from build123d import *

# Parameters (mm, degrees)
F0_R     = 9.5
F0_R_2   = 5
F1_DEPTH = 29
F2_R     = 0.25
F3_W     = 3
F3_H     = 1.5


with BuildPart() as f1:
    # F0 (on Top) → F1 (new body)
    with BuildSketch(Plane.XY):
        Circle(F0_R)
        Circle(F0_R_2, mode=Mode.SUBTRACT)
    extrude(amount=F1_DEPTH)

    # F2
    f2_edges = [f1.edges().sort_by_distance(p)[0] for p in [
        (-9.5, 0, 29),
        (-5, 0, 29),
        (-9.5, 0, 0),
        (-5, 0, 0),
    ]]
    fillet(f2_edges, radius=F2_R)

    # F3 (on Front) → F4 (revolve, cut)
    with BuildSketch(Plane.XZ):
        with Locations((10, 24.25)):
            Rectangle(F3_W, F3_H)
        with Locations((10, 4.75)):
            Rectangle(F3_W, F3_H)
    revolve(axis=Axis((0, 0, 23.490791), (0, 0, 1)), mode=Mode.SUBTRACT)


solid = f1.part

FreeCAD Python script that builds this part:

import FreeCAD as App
import Part
import Sketcher

V = App.Vector


def edges_at(feature, points):
    """Names of the edges that pass closest to the given points."""
    edges = feature.Shape.Edges
    near = lambda p: min(range(len(edges)), key=lambda i: edges[i].distToShape(Part.Vertex(*p))[0])
    return sorted({f"Edge{near(p) + 1}" for p in points})


def add_polygon(sketch, points):
    """Adds a closed chain of lines whose ends are joined by coincident constraints."""
    first, n = sketch.GeometryCount, len(points)
    for a, b in zip(points, points[1:] + points[:1]):
        sketch.addGeometry(Part.LineSegment(App.Vector(*a, 0), App.Vector(*b, 0)), False)
    for i in range(n):
        sketch.addConstraint(Sketcher.Constraint("Coincident", first + i, 2, first + (i + 1) % n, 1))

doc = App.newDocument("Part")
body = doc.addObject("PartDesign::Body", "Body")

# Sketch on XY plane
sketch1 = doc.addObject("Sketcher::SketchObject", "Sketch")
body.addObject(sketch1)
sketch1.AttachmentSupport = (doc.XY_Plane, [""])
sketch1.MapMode = "FlatFace"
sketch1.addGeometry(Part.Circle(V(0, 0, 0), V(0, 0, 1), 10), False)
sketch1.addGeometry(Part.Circle(V(0, 0, 0), V(0, 0, 1), 5), False)
sketch1.addConstraint(Sketcher.Constraint("Coincident", 0, 3, -1, 1))
sketch1.addConstraint(Sketcher.Constraint("Coincident", 1, 3, -1, 1))
sketch1.addConstraint(Sketcher.Constraint("Diameter", 0, 19.0))
sketch1.addConstraint(Sketcher.Constraint("Diameter", 1, 10.0))
pad1 = doc.addObject("PartDesign::Pad", "Pad")
body.addObject(pad1)
pad1.Profile = sketch1
pad1.Length = 29
doc.recompute()

fillet = doc.addObject("PartDesign::Fillet", "Fillet")
body.addObject(fillet)
fillet.Base = (pad1, edges_at(pad1, [
    (-9.5, 0, 29),
    (-5, 0, 29),
    (-9.5, 0, 0),
    (-5, 0, 0),
]))
fillet.Radius = 0.25

# Sketch on XZ plane
sketch2 = doc.addObject("Sketcher::SketchObject", "Sketch001")
body.addObject(sketch2)
sketch2.AttachmentSupport = (doc.XZ_Plane, [""])
sketch2.MapMode = "FlatFace"
add_polygon(sketch2, [(8.5, 25), (8.5, 23.5), (11.5, 23.5), (11.5, 25)])  # lines 0-3
add_polygon(sketch2, [(8.5, 5.5), (8.5, 4), (11.5, 4), (11.5, 5.5)])  # lines 4-7
sketch2.addConstraint(Sketcher.Constraint("Vertical", 0))
sketch2.addConstraint(Sketcher.Constraint("Horizontal", 1))
sketch2.addConstraint(Sketcher.Constraint("Vertical", 2))
sketch2.addConstraint(Sketcher.Constraint("Horizontal", 3))
sketch2.addConstraint(Sketcher.Constraint("Vertical", 4))
sketch2.addConstraint(Sketcher.Constraint("Horizontal", 5))
sketch2.addConstraint(Sketcher.Constraint("Vertical", 6))
sketch2.addConstraint(Sketcher.Constraint("Horizontal", 7))
sketch2.addConstraint(Sketcher.Constraint("Vertical", 3, 2, 4, 2))
sketch2.addConstraint(Sketcher.Constraint("Vertical", 2, 2, 5, 2))
sketch2.addConstraint(Sketcher.Constraint("Equal", 2, 4))
sketch2.addConstraint(Sketcher.Constraint("DistanceX", 1, 1, 1, 2, 3.0))
sketch2.addConstraint(Sketcher.Constraint("DistanceY", 0, 2, 0, 1, 1.5))
sketch2.addConstraint(Sketcher.Constraint("DistanceY", -1, 1, 2, 2, 25.0))
sketch2.addConstraint(Sketcher.Constraint("DistanceY", -1, 1, 4, 2, 4.0))
sketch2.addConstraint(Sketcher.Constraint("DistanceX", -1, 1, 0, 2, 8.5))
groove = doc.addObject("PartDesign::Groove", "Groove")
body.addObject(groove)
groove.Profile = sketch2
groove.ReferenceAxis = (sketch2, ["V_Axis"])
groove.Angle = 360

doc.recompute()
